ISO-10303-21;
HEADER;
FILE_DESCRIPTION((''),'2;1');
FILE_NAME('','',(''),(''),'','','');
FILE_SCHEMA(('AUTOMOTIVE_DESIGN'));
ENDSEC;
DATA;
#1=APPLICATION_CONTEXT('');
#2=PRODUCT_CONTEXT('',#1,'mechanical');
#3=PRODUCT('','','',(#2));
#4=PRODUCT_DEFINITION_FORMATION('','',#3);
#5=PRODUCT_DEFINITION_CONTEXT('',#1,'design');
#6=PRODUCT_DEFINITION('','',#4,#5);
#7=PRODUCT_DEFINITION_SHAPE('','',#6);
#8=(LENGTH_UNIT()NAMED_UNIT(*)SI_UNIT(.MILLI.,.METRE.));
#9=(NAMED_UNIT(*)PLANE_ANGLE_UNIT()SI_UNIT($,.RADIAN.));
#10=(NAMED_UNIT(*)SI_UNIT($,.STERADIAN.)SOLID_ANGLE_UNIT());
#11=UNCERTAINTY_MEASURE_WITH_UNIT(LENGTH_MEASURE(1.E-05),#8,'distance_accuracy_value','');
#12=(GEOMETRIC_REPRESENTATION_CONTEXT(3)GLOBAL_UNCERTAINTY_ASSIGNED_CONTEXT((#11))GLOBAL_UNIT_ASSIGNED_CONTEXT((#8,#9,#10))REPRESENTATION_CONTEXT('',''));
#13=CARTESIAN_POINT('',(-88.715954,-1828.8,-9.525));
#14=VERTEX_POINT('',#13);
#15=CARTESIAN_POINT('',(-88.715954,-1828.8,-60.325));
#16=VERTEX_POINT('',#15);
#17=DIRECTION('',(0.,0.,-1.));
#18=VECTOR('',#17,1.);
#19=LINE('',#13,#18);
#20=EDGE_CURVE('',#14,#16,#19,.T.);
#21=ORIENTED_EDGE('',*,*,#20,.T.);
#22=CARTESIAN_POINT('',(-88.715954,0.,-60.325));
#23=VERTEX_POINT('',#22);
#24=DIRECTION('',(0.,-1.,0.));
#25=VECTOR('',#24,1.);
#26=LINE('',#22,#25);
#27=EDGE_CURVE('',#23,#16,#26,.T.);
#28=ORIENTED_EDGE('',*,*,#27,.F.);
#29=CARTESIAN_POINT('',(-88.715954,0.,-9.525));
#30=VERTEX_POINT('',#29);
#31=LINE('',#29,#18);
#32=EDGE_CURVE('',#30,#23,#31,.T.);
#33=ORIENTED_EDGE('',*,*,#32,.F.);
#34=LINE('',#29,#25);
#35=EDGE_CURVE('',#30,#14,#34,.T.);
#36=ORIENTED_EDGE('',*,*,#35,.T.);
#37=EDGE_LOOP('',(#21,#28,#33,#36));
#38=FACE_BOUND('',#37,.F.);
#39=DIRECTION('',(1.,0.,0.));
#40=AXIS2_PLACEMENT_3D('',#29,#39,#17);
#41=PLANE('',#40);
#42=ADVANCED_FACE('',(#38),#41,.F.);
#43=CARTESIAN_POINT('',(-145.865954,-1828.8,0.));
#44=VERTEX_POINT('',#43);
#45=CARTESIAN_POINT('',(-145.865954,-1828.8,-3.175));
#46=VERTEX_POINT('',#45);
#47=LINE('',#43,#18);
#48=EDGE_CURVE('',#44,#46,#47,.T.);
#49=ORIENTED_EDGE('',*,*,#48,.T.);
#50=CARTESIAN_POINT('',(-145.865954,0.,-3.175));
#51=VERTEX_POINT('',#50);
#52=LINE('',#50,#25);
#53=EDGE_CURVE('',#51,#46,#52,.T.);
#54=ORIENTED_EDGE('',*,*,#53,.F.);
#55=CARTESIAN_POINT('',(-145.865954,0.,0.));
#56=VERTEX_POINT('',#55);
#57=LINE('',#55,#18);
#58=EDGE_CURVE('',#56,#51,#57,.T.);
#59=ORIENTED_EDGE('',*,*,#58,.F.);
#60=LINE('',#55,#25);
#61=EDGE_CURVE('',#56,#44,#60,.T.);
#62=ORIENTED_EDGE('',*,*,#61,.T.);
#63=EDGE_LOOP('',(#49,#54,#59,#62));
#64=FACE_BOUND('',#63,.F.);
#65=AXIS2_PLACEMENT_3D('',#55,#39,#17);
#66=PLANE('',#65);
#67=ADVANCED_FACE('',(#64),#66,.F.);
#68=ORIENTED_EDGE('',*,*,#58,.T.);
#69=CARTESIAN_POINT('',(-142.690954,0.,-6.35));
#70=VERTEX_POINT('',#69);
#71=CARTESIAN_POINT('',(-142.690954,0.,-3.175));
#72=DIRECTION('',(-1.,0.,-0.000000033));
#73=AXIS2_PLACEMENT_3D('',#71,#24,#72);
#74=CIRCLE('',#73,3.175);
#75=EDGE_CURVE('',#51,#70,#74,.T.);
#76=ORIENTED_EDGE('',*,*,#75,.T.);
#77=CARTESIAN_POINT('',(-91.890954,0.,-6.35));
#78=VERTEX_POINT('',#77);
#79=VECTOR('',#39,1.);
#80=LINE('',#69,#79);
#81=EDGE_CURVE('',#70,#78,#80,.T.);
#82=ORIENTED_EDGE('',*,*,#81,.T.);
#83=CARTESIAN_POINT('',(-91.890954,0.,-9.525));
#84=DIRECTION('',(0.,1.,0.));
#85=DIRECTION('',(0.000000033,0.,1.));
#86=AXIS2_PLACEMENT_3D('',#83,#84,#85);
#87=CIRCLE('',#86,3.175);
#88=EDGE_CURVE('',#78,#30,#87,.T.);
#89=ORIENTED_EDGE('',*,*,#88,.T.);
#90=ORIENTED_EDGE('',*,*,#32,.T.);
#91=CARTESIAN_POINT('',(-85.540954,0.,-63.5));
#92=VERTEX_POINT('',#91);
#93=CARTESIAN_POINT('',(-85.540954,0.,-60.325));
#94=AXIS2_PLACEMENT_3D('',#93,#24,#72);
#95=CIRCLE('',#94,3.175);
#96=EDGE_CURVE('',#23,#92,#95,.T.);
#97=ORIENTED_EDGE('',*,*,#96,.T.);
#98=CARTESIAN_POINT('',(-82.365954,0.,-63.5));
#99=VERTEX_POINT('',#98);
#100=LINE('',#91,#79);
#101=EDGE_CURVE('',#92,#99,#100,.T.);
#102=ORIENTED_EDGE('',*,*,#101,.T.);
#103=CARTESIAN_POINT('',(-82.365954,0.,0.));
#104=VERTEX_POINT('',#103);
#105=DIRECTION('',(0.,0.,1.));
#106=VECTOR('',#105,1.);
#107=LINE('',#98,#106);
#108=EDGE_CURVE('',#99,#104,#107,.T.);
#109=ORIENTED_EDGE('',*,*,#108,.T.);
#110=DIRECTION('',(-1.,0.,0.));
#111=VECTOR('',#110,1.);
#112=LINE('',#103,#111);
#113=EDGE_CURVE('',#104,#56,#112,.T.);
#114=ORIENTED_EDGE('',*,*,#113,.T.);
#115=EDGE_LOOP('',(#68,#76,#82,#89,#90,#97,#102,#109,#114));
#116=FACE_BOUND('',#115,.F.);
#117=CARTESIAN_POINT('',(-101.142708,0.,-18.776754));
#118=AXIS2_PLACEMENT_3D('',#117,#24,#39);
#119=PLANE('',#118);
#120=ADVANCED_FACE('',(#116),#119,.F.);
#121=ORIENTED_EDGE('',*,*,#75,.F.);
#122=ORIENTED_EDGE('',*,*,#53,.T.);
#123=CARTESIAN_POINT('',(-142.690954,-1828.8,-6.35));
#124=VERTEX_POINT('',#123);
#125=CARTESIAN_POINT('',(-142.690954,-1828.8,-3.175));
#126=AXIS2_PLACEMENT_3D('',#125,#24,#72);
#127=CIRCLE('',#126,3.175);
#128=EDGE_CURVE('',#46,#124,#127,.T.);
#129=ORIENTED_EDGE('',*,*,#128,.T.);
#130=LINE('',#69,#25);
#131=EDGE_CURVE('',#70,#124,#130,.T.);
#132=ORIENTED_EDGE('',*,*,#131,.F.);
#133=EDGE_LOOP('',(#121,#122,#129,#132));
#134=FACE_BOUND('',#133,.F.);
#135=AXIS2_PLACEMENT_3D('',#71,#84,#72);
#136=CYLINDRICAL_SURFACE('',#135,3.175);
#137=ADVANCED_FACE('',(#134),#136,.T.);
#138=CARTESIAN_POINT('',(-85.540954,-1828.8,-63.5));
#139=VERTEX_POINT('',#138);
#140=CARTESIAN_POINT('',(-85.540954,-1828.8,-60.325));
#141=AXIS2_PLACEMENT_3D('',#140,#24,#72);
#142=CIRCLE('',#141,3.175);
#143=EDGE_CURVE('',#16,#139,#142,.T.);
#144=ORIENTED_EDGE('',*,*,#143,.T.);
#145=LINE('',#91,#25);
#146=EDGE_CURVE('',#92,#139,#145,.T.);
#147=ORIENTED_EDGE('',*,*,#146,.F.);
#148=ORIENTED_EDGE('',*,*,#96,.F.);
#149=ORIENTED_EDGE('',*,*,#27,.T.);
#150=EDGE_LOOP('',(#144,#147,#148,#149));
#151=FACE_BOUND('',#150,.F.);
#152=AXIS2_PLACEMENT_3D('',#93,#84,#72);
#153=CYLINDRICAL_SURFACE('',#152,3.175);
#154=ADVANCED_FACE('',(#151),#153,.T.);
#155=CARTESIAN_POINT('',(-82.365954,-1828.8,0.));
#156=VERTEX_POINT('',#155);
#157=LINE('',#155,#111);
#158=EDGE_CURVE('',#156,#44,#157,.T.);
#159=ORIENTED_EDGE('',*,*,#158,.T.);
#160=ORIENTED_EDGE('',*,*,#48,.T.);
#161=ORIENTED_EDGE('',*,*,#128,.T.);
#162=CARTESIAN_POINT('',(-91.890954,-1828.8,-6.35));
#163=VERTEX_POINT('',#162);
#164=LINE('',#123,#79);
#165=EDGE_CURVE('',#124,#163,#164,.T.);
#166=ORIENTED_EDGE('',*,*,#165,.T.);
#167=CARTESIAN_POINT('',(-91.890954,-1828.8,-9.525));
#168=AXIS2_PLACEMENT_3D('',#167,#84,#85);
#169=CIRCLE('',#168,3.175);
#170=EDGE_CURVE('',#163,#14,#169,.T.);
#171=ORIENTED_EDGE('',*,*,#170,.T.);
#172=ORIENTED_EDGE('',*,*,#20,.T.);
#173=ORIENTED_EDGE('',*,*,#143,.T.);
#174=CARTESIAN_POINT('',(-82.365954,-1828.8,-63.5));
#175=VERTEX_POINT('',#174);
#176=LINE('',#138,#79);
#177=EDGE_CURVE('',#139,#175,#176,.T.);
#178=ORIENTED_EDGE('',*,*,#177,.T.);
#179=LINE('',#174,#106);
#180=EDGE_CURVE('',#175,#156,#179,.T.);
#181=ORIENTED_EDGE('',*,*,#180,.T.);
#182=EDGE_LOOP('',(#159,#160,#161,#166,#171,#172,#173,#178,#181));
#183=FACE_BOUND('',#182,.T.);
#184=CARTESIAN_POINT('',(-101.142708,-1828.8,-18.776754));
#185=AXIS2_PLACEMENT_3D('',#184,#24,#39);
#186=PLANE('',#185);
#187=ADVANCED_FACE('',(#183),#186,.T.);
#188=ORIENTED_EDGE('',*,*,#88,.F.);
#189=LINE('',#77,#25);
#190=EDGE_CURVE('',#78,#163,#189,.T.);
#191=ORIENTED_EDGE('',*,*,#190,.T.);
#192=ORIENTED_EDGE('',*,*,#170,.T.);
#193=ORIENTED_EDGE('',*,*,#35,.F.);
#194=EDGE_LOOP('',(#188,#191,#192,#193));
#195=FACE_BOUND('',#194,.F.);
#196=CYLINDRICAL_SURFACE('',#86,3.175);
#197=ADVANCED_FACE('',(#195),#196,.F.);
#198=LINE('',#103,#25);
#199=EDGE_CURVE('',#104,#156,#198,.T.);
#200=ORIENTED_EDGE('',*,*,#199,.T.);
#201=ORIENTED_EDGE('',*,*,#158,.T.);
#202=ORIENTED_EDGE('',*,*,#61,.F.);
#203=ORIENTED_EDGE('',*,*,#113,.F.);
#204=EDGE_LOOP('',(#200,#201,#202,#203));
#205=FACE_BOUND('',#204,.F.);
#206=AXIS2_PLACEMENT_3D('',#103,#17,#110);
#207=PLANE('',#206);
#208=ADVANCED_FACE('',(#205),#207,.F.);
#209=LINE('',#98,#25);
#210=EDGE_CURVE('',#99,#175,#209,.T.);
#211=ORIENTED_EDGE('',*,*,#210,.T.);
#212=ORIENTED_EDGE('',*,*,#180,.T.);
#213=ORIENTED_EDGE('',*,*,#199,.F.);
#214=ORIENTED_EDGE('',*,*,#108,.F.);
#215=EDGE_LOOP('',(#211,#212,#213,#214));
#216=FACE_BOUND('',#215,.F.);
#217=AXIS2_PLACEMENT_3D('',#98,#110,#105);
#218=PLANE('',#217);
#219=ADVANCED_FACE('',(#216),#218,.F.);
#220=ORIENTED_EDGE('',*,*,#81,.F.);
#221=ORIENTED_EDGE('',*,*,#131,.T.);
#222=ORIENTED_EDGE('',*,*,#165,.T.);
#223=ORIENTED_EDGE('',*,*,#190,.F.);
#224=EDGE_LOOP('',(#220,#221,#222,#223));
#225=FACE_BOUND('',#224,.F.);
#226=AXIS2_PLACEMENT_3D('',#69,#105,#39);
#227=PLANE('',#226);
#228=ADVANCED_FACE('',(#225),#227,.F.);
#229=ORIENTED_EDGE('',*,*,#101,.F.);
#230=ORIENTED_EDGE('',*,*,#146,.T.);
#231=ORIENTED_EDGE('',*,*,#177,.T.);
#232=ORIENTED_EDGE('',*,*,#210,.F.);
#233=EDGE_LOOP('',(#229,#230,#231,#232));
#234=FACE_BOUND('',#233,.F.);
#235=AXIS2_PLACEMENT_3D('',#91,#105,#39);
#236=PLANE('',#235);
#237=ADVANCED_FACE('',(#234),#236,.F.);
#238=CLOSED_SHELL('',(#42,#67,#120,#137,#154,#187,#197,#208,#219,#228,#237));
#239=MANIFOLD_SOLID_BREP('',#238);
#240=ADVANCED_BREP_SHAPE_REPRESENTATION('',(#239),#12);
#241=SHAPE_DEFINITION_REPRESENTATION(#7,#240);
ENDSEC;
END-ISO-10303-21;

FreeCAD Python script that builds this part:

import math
import FreeCAD as App
import Part
import Sketcher

V = App.Vector
Q = App.Units.Quantity

doc = App.newDocument("Part")
body = doc.addObject("PartDesign::Body", "Body")

# Sketch on XZ plane
sketch1 = body.newObject("Sketcher::SketchObject", "Sketch")
sketch1.AttachmentSupport = (doc.getObject("XZ_Plane"), [""])
sketch1.MapMode = "FlatFace"
sketch1.addGeometry(Part.LineSegment(V(-82.365954, -63.5, 0), V(-82.365954, 0, 0)), False)
sketch1.addGeometry(Part.LineSegment(V(-82.365954, 0, 0), V(-145.865954, 0, 0)), False)
sketch1.addGeometry(Part.LineSegment(V(-145.865954, 0, 0), V(-145.865954, -3.175, 0)), False)
sketch1.addGeometry(Part.ArcOfCircle(Part.Circle(V(-142.690954, -3.175, 0), V(0, 0, 1), 3.175), math.radians(-179.999998), math.radians(-90.000002)), False)
sketch1.addGeometry(Part.LineSegment(V(-142.690954, -6.35, 0), V(-91.890954, -6.35, 0)), False)
sketch1.addGeometry(Part.ArcOfCircle(Part.Circle(V(-91.890954, -9.525, 0), V(0, 0, 1), 3.175), math.radians(0.000002), math.radians(89.999998)), False)
sketch1.addGeometry(Part.LineSegment(V(-88.715954, -9.525, 0), V(-88.715954, -60.325, 0)), False)
sketch1.addGeometry(Part.ArcOfCircle(Part.Circle(V(-85.540954, -60.325, 0), V(0, 0, 1), 3.175), math.radians(-179.999998), math.radians(-90.000002)), False)
sketch1.addGeometry(Part.LineSegment(V(-85.540954, -63.5, 0), V(-82.365954, -63.5, 0)), False)
sketch1.addConstraint(Sketcher.Constraint("Coincident", 0, 2, 1, 1))
sketch1.addConstraint(Sketcher.Constraint("Coincident", 1, 2, 2, 1))
sketch1.addConstraint(Sketcher.Constraint("Tangent", 2, 2, 3, 1))
sketch1.addConstraint(Sketcher.Constraint("Tangent", 3, 2, 4, 1))
sketch1.addConstraint(Sketcher.Constraint("Tangent", 4, 2, 5, 2))
sketch1.addConstraint(Sketcher.Constraint("Tangent", 5, 1, 6, 1))
sketch1.addConstraint(Sketcher.Constraint("Tangent", 6, 2, 7, 1))
sketch1.addConstraint(Sketcher.Constraint("Tangent", 7, 2, 8, 1))
sketch1.addConstraint(Sketcher.Constraint("Coincident", 8, 2, 0, 1))
sketch1.addConstraint(Sketcher.Constraint("Vertical", 0))
sketch1.addConstraint(Sketcher.Constraint("Horizontal", 1))
sketch1.addConstraint(Sketcher.Constraint("Vertical", 2))
sketch1.addConstraint(Sketcher.Constraint("Horizontal", 4))
sketch1.addConstraint(Sketcher.Constraint("Vertical", 6))
sketch1.addConstraint(Sketcher.Constraint("Horizontal", 8))
sketch1.addConstraint(Sketcher.Constraint("Equal", 3, 5))
sketch1.addConstraint(Sketcher.Constraint("Equal", 5, 7))
sketch1.addConstraint(Sketcher.Constraint("PointOnObject", 0, 2, -1))
sketch1.addConstraint(Sketcher.Constraint("Equal", 1, 0))
sketch1.addConstraint(Sketcher.Constraint("Equal", 8, 2))
sketch1.addConstraint(Sketcher.Constraint("DistanceX", 4, 1, 4, 2, Q("2 in")))
sketch1.addConstraint(Sketcher.Constraint("DistanceX", 1, 2, 1, 1, Q("2.5 in")))
sketch1.addConstraint(Sketcher.Constraint("Radius", 3, Q("0.125 in")))
sketch1.addConstraint(Sketcher.Constraint("DistanceX", 3, 3, -1, 1, Q("142.690954 mm")))
pad1 = body.newObject("PartDesign::Pad", "Pad")
pad1.Profile = sketch1
pad1.Length = Q("72 in")

doc.recompute()
